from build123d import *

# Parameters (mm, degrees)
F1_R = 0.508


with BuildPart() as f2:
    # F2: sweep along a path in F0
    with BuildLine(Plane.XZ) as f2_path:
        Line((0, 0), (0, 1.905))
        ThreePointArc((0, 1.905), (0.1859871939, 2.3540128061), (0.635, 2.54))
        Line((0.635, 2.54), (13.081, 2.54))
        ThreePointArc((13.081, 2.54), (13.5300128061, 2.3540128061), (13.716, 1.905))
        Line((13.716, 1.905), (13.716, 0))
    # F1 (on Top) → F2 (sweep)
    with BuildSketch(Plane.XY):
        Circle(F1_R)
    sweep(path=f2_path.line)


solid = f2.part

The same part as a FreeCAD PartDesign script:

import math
import FreeCAD as App
import Part
import Sketcher
from FreeCAD import Vector
Q = App.Units.Quantity

doc = App.newDocument("Part")
params = doc.addObject("Spreadsheet::Sheet", "Params")
for row, (alias, value) in enumerate([
    ("sketch1_diameter", "0.04 in"),
    ("sketch2_radius", "0.025 in"),
    ("sketch2_width", "0.49 in"),
], start=1):
    params.set(f"A{row}", alias)
    params.set(f"B{row}", "=" + value)
    params.setAlias(f"B{row}", alias)

body = doc.addObject("PartDesign::Body", "Body")

# Sketch on XY plane
sketch1 = body.newObject("Sketcher::SketchObject", "Sketch")
sketch1.AttachmentSupport = (doc.getObject("XY_Plane"), [""])
sketch1.MapMode = "FlatFace"
sketch1.addGeometry(Part.Circle(Vector(0, 0, 0), Vector(0, 0, 1), 0.5), False)
sketch1.addConstraint([
    Sketcher.Constraint("Coincident", 0, 3, -1, 1),
    Sketcher.Constraint("Diameter", 0, Q("0.04 in")),
])
sketch1.setExpression("Constraints[1]", "Params.sketch1_diameter")

# Sketch on XZ plane
sketch2 = body.newObject("Sketcher::SketchObject", "Sketch001")
sketch2.AttachmentSupport = (doc.getObject("XZ_Plane"), [""])
sketch2.MapMode = "FlatFace"
sketch2.addGeometry([
    Part.LineSegment(Vector(0, 0, 0), Vector(0, 1.9, 0)),  # 0
    Part.ArcOfCircle(Part.Circle(Vector(0.6, 1.9, 0), Vector(0, 0, 1), 0.6), math.radians(90), math.radians(180)),  # 1
    Part.LineSegment(Vector(0.6, 2.5, 0), Vector(13.1, 2.5, 0)),  # 2
    Part.ArcOfCircle(Part.Circle(Vector(13.1, 1.9, 0), Vector(0, 0, 1), 0.6), math.radians(0), math.radians(90)),  # 3
    Part.LineSegment(Vector(13.7, 1.9, 0), Vector(13.7, 0, 0)),  # 4
], False)
sketch2.addConstraint([
    Sketcher.Constraint("Tangent", 0, 2, 1, 2),
    Sketcher.Constraint("Tangent", 1, 1, 2, 1),
    Sketcher.Constraint("Tangent", 2, 2, 3, 2),
    Sketcher.Constraint("Tangent", 3, 1, 4, 1),
    Sketcher.Constraint("Vertical", 0),
    Sketcher.Constraint("Horizontal", 2),
    Sketcher.Constraint("Vertical", 4),
    Sketcher.Constraint("Coincident", 0, 1, -1, 1),
    Sketcher.Constraint("Equal", 1, 3),
    Sketcher.Constraint("PointOnObject", 4, 2, -1),
    Sketcher.Constraint("Radius", 1, Q("0.025 in")),
    Sketcher.Constraint("DistanceX", 2, 1, 2, 2, Q("0.49 in")),
    Sketcher.Constraint("DistanceY", -1, 1, 1, 1, Q("0.1 in")),
])
sketch2.setExpression("Constraints[10]", "Params.sketch2_radius")
sketch2.setExpression("Constraints[11]", "Params.sketch2_width")
doc.recompute()

additivepipe = body.newObject("PartDesign::AdditivePipe", "AdditivePipe")
additivepipe.Profile = sketch1
additivepipe.Spine = (sketch2, ["Edge1", "Edge2", "Edge3", "Edge4", "Edge5"])

doc.recompute()
